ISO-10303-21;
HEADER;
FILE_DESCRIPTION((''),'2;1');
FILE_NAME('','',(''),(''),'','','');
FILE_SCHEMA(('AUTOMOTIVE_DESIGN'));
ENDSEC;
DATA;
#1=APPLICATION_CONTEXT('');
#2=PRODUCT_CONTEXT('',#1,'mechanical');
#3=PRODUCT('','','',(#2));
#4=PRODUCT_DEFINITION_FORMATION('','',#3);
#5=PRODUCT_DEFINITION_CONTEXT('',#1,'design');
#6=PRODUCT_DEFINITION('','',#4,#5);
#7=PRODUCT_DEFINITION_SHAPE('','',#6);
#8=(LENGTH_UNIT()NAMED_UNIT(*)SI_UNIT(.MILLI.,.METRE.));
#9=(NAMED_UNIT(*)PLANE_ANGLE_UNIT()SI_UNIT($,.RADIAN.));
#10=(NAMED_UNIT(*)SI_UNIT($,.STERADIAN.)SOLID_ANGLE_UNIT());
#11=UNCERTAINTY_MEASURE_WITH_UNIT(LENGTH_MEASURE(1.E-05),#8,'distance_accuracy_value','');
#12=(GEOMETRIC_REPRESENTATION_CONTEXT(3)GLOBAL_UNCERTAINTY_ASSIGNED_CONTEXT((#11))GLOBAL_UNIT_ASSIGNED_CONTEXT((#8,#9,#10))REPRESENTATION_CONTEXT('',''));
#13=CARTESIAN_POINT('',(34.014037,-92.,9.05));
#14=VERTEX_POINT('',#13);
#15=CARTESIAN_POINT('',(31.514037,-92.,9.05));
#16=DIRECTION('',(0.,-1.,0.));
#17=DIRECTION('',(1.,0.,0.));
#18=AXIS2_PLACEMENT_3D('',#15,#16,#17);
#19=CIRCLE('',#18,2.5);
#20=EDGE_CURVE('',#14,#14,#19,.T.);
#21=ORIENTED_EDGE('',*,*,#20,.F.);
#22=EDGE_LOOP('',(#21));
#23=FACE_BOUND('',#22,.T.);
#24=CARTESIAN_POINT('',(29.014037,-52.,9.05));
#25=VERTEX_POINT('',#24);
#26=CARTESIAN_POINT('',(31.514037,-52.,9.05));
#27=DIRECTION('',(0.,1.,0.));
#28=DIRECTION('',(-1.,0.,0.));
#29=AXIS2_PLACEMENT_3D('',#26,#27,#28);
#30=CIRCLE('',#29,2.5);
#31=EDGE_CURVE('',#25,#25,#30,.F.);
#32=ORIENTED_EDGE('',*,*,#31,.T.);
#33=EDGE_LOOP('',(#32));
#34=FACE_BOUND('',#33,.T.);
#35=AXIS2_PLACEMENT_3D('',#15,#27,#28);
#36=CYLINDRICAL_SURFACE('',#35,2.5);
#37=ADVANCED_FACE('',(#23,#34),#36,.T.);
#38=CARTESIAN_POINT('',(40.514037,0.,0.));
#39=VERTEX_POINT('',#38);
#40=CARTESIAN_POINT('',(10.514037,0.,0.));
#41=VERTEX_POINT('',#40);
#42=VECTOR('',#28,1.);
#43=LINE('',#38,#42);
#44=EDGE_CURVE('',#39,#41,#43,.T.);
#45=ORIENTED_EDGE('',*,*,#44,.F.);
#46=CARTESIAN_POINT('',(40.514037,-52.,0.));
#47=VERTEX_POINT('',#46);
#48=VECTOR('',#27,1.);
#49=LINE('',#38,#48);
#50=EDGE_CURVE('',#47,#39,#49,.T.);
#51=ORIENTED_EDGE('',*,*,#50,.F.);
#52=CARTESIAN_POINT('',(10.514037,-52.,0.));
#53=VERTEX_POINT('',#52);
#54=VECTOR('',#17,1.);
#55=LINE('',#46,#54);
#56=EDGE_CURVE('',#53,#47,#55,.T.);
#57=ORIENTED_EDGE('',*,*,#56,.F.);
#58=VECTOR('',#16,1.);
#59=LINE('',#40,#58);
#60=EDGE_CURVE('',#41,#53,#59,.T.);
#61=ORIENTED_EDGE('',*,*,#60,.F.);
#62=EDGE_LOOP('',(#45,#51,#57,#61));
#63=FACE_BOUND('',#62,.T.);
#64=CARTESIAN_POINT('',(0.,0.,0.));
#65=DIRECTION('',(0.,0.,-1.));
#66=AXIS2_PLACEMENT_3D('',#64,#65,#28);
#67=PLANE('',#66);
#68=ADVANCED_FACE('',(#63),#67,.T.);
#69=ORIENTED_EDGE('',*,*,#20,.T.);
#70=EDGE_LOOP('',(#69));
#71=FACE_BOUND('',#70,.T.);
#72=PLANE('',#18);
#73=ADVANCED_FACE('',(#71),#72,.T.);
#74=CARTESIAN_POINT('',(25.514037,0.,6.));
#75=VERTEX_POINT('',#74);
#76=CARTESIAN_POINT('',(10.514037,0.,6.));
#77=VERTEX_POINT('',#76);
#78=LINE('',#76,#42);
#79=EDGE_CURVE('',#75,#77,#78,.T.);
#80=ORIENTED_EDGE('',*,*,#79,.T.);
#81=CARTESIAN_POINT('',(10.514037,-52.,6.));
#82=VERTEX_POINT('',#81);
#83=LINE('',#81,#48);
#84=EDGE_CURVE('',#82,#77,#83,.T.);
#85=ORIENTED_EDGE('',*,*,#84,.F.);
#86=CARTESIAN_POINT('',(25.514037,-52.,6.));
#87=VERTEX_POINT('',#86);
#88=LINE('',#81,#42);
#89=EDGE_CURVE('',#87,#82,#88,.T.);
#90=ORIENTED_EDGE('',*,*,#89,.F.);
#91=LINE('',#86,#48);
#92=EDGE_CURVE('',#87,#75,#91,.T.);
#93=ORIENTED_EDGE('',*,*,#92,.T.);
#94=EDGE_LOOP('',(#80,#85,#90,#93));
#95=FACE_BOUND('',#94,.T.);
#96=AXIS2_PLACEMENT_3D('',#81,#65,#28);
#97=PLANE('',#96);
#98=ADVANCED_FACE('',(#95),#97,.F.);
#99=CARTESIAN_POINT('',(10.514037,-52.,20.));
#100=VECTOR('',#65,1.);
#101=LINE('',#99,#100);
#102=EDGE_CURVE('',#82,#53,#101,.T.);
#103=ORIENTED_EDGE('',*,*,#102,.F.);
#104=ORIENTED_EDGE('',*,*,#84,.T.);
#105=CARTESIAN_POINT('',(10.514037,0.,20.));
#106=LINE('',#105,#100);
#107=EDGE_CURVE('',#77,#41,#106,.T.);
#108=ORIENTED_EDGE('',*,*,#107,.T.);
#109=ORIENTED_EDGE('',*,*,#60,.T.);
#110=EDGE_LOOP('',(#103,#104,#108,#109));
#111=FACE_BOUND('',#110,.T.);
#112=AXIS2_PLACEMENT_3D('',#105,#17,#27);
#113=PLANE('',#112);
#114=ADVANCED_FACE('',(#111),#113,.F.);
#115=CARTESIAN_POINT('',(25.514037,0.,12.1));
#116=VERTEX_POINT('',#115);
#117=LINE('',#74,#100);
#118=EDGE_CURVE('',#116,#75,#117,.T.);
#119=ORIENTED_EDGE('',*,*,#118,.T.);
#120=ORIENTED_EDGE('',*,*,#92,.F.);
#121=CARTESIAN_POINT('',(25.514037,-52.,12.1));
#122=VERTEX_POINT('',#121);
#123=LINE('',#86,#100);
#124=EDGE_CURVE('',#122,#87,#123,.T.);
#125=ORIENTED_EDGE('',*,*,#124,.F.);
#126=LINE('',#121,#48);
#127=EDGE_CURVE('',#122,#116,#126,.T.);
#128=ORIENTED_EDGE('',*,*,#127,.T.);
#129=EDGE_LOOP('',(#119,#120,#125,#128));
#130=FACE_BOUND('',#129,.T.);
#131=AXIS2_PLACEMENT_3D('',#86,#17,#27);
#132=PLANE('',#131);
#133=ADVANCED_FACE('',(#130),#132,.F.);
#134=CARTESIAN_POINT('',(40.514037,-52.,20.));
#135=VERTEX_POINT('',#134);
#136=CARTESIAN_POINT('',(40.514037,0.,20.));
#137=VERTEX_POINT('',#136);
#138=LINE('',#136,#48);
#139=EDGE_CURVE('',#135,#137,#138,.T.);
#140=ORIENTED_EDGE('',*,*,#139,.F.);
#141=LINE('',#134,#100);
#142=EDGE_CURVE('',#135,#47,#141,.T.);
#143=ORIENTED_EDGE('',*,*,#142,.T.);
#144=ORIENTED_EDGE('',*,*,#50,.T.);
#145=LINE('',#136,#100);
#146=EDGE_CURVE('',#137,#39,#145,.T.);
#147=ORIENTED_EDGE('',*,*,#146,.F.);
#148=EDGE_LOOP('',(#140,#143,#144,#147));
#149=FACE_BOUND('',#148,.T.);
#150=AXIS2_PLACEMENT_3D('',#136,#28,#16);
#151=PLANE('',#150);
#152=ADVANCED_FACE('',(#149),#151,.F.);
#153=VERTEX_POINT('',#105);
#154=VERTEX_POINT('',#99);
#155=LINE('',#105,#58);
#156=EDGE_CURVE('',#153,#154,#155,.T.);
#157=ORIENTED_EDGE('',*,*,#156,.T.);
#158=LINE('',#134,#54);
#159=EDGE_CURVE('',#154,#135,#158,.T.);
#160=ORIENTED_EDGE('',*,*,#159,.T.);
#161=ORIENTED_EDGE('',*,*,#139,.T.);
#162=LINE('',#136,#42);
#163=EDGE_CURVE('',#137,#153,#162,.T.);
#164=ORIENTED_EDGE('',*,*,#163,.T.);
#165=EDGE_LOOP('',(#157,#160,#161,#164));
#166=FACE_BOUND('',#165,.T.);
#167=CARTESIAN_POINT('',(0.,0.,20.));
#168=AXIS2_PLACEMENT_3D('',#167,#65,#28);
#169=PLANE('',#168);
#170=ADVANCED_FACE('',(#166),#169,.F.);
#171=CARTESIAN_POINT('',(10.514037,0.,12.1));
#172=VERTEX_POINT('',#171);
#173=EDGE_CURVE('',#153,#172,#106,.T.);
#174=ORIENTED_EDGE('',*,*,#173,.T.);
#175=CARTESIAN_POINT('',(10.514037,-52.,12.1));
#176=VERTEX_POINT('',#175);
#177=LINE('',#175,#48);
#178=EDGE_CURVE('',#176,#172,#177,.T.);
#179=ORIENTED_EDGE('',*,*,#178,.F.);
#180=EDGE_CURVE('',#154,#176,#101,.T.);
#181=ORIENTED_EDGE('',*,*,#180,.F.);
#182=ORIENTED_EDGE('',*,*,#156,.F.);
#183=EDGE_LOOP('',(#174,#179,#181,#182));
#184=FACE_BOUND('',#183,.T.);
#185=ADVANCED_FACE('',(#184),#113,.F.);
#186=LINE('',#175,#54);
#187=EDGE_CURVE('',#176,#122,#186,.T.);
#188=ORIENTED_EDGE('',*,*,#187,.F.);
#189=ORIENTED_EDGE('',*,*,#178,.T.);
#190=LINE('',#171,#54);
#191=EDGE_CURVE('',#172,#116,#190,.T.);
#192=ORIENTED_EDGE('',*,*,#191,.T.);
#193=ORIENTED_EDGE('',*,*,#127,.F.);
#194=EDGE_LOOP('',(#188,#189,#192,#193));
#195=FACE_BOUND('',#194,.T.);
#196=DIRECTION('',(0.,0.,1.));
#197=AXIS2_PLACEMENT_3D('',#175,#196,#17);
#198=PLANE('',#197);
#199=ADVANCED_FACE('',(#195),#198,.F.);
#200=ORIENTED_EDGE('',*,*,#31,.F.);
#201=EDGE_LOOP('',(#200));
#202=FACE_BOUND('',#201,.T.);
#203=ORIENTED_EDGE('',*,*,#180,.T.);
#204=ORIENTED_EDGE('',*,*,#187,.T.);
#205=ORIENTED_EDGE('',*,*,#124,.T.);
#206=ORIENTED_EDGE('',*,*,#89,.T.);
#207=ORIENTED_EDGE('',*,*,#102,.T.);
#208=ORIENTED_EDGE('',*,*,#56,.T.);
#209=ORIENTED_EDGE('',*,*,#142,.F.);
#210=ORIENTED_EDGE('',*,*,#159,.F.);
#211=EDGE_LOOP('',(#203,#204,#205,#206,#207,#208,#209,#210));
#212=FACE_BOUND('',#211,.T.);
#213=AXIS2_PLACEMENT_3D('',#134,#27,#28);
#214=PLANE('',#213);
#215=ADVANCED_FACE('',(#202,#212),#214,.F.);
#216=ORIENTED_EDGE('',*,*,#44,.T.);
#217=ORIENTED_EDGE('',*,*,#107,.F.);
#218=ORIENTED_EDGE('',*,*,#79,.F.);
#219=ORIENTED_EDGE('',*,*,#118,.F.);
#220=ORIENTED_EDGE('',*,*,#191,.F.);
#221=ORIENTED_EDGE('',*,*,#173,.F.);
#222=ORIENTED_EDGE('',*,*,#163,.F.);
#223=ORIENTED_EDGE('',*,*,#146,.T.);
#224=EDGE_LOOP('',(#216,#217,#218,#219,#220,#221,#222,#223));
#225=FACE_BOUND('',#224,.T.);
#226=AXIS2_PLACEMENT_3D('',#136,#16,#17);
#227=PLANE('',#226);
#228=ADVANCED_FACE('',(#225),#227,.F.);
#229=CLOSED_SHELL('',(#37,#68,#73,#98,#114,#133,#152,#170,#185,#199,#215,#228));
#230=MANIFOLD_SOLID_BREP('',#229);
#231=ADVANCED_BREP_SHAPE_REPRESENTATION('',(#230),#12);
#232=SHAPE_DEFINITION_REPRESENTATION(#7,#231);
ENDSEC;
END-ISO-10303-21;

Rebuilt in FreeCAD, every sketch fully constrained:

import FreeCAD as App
import Part
import Sketcher
Q = App.Units.Quantity


def add_polygon(sketch, points):
    """Adds a closed chain of lines whose ends are joined by coincident constraints."""
    first, n = sketch.GeometryCount, len(points)
    for a, b in zip(points, points[1:] + points[:1]):
        sketch.addGeometry(Part.LineSegment(App.Vector(*a, 0), App.Vector(*b, 0)), False)
    for i in range(n):
        sketch.addConstraint(Sketcher.Constraint("Coincident", first + i, 2, first + (i + 1) % n, 1))

doc = App.newDocument("Part")
body = doc.addObject("PartDesign::Body", "Body")

# Sketch on XY plane
sketch1 = doc.addObject("Sketcher::SketchObject", "Sketch")
body.addObject(sketch1)
sketch1.AttachmentSupport = (doc.XY_Plane, [""])
sketch1.MapMode = "FlatFace"
add_polygon(sketch1, [(11, 0), (11, -52), (41, -52), (41, 0)])  # lines 0-3
sketch1.addConstraint([
    Sketcher.Constraint("Vertical", 0),
    Sketcher.Constraint("Horizontal", 1),
    Sketcher.Constraint("Vertical", 2),
    Sketcher.Constraint("Horizontal", 3),
    Sketcher.Constraint("PointOnObject", 2, 2, -1),
    Sketcher.Constraint("DistanceX", 1, 1, 1, 2, Q("30 mm")),
    Sketcher.Constraint("DistanceY", 0, 2, 0, 1, Q("52 mm")),
    Sketcher.Constraint("DistanceX", -1, 1, 0, 2, Q("10.514037 mm")),
])
pad1 = doc.addObject("PartDesign::Pad", "Pad")
body.addObject(pad1)
pad1.Profile = sketch1
pad1.Length = 20

# Sketch on XZ plane
sketch2 = doc.addObject("Sketcher::SketchObject", "Sketch001")
body.addObject(sketch2)
sketch2.AttachmentSupport = (doc.XZ_Plane, [""])
sketch2.MapMode = "FlatFace"
add_polygon(sketch2, [(11, 6), (11, 12), (26, 12), (26, 6)])  # lines 0-3
sketch2.addConstraint([
    Sketcher.Constraint("Vertical", 0),
    Sketcher.Constraint("Horizontal", 1),
    Sketcher.Constraint("Vertical", 2),
    Sketcher.Constraint("Horizontal", 3),
    Sketcher.Constraint("DistanceX", 1, 1, 1, 2, Q("15 mm")),
    Sketcher.Constraint("DistanceY", 0, 1, 0, 2, Q("6.1 mm")),
    Sketcher.Constraint("DistanceY", -1, 1, 2, 2, Q("6 mm")),
    Sketcher.Constraint("DistanceX", -1, 1, 0, 2, Q("10.514037 mm")),
])
pocket1 = doc.addObject("PartDesign::Pocket", "Pocket")
body.addObject(pocket1)
pocket1.Profile = sketch2
pocket1.Type = "ThroughAll"
pocket1.Reversed = True

# Sketch on XZ plane
sketch3 = doc.addObject("Sketcher::SketchObject", "Sketch002")
body.addObject(sketch3)
sketch3.AttachmentSupport = (doc.XZ_Plane, [""])
sketch3.MapMode = "FlatFace"
sketch3.AttachmentOffset = App.Placement(App.Vector(0, 0, 52), App.Rotation())
sketch3.addGeometry(Part.Circle(App.Vector(31.5, 9.1, 0), App.Vector(0, 0, 1), 2.5), False)
sketch3.addConstraint([
    Sketcher.Constraint("Diameter", 0, Q("5 mm")),
    Sketcher.Constraint("DistanceY", -1, 1, 0, 3, Q("9.05 mm")),
    Sketcher.Constraint("DistanceX", -1, 1, 0, 3, Q("31.514037 mm")),
])
pad2 = doc.addObject("PartDesign::Pad", "Pad001")
body.addObject(pad2)
pad2.Profile = sketch3
pad2.Length = 40

doc.recompute()
